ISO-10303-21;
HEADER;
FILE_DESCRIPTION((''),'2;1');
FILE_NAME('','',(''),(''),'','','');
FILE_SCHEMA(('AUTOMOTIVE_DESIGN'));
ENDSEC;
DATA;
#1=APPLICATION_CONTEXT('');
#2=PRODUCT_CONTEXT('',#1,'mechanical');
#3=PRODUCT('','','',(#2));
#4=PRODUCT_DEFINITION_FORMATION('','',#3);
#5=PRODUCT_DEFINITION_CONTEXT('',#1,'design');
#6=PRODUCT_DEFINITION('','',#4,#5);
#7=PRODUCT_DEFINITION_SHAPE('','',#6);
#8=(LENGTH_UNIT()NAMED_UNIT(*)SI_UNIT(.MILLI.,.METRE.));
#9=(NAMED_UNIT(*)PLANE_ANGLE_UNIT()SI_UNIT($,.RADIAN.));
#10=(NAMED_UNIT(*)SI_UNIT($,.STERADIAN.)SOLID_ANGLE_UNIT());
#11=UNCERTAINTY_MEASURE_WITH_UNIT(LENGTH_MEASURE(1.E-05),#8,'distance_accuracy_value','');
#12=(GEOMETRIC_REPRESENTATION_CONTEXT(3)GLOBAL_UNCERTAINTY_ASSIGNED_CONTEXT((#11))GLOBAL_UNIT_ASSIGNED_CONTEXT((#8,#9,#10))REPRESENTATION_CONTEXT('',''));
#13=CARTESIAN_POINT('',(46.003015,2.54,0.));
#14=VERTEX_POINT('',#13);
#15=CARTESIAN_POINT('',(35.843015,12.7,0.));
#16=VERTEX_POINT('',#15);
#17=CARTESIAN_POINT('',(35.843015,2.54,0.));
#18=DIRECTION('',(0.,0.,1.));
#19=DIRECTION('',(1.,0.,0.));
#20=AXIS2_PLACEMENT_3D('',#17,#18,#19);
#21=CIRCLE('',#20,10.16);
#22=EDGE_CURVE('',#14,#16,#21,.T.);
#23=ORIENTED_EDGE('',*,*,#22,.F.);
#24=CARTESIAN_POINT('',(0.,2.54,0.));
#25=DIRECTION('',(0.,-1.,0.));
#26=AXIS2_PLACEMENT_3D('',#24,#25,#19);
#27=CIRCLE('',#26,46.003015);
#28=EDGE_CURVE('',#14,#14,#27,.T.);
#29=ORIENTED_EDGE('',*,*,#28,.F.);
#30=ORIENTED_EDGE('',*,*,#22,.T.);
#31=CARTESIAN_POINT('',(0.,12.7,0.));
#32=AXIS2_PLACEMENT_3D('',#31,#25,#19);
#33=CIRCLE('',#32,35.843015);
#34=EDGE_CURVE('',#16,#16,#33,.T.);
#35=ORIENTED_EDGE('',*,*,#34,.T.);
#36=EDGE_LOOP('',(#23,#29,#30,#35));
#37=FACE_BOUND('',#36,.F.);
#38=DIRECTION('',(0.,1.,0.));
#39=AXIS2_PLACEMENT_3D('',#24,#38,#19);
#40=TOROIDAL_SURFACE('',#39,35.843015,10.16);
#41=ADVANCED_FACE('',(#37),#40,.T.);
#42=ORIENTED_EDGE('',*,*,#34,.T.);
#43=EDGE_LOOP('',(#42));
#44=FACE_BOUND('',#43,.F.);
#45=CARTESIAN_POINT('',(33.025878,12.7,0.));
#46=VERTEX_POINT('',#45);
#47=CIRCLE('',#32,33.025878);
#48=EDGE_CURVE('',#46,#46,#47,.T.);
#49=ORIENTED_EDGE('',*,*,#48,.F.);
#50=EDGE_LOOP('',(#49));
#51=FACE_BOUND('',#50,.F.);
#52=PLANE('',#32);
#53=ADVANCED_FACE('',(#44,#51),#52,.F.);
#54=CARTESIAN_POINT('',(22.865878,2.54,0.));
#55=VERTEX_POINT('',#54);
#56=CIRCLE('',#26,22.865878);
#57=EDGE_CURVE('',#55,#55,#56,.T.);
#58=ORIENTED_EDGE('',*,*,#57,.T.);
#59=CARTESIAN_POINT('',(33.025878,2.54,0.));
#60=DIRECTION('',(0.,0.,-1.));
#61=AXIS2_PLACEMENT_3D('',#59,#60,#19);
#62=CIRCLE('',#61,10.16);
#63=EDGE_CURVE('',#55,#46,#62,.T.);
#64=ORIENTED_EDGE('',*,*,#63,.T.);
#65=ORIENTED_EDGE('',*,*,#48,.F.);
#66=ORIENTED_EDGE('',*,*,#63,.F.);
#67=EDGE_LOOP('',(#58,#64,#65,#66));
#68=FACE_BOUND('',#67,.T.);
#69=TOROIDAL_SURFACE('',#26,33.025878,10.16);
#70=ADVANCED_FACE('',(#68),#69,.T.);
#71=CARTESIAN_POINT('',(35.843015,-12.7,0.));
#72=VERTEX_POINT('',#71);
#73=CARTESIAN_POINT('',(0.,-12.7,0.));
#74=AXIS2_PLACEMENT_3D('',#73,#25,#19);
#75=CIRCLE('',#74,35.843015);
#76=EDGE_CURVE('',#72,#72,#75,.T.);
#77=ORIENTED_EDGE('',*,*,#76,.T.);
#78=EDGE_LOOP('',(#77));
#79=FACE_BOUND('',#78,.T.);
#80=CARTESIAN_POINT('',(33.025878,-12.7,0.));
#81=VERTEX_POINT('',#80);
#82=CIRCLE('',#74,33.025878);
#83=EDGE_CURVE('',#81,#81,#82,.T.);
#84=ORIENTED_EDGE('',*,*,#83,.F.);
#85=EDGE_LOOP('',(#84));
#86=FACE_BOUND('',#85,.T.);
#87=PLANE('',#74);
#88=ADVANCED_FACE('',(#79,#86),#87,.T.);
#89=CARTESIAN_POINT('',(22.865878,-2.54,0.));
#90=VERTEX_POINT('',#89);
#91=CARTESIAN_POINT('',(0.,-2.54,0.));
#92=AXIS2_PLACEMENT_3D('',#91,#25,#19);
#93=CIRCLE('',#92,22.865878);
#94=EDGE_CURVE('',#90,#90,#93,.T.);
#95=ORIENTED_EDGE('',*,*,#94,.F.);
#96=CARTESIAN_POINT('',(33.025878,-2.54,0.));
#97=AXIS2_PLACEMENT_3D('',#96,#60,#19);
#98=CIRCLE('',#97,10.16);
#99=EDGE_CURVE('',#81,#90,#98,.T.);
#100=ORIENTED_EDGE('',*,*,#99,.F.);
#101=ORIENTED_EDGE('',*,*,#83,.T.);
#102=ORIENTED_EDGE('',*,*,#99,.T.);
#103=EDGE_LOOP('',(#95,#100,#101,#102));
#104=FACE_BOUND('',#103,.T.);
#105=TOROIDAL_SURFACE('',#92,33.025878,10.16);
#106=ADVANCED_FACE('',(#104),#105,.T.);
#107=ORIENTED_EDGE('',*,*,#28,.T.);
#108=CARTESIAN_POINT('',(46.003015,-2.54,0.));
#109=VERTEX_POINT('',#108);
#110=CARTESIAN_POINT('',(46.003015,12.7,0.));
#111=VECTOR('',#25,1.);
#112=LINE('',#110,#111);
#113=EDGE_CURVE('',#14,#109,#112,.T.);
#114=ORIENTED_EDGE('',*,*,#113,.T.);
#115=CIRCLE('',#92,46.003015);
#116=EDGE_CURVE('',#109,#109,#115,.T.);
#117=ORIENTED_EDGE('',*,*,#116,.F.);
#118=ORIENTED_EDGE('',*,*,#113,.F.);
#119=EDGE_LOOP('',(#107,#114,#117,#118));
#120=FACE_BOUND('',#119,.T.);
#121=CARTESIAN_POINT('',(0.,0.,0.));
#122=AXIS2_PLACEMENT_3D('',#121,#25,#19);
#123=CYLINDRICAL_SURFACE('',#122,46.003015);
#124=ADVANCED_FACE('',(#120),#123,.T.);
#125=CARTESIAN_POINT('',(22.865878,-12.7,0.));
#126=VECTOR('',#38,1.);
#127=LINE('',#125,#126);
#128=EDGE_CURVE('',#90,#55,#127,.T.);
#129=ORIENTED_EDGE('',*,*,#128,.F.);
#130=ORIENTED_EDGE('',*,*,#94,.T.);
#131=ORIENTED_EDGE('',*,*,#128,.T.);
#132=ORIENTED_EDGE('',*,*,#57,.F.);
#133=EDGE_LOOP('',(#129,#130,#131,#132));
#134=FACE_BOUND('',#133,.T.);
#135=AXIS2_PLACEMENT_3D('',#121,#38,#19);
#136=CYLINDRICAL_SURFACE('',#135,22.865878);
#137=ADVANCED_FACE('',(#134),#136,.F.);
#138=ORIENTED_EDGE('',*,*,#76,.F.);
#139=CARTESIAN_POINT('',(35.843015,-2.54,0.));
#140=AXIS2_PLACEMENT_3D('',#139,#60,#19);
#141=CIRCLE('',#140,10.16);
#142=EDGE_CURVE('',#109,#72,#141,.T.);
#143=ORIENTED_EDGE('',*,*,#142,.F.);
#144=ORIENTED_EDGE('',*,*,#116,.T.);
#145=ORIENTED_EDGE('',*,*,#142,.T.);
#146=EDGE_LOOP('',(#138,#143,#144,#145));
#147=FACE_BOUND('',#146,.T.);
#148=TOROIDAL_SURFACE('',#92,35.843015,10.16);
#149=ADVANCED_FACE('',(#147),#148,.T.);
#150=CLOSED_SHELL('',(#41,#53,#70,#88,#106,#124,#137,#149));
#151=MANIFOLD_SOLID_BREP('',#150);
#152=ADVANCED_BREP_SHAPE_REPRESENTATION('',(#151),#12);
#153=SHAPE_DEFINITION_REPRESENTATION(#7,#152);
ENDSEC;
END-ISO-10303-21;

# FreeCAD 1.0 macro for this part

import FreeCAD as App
import Part
import Sketcher
Q = App.Units.Quantity


def edges_at(feature, points):
    """Names of the edges that pass closest to the given points."""
    edges = feature.Shape.Edges
    near = lambda p: min(range(len(edges)), key=lambda i: edges[i].distToShape(Part.Vertex(*p))[0])
    return sorted({f"Edge{near(p) + 1}" for p in points})

doc = App.newDocument("Part")
body = doc.addObject("PartDesign::Body", "Body")

# Sketch on XZ plane
sketch1 = body.newObject("Sketcher::SketchObject", "Sketch")
sketch1.AttachmentSupport = (doc.getObject("XZ_Plane"), [""])
sketch1.MapMode = "FlatFace"
sketch1.addGeometry([
    Part.Circle(App.Vector(0, 0, 0), App.Vector(0, 0, 1), 46),
    Part.Circle(App.Vector(0, 0, 0), App.Vector(0, 0, 1), 23),
], False)
sketch1.addConstraint([
    Sketcher.Constraint("Coincident", 0, 3, -1, 1),
    Sketcher.Constraint("Coincident", 1, 3, -1, 1),
    Sketcher.Constraint("Diameter", 0, Q("92.00603 mm")),
    Sketcher.Constraint("Diameter", 1, Q("45.731756 mm")),
])
pad1 = body.newObject("PartDesign::Pad", "Pad")
pad1.Profile = sketch1
pad1.Length = Q("1 in")
pad1.Midplane = True
doc.recompute()

fillet = body.newObject("PartDesign::Fillet", "Fillet")
fillet.Base = (pad1, edges_at(pad1, [
    (-46.003, -12.7, 0),
    (-46.003, 12.7, 0),
    (-22.866, -12.7, 0),
    (-22.866, 12.7, 0),
]))
fillet.Radius = Q("0.4 in")

doc.recompute()
